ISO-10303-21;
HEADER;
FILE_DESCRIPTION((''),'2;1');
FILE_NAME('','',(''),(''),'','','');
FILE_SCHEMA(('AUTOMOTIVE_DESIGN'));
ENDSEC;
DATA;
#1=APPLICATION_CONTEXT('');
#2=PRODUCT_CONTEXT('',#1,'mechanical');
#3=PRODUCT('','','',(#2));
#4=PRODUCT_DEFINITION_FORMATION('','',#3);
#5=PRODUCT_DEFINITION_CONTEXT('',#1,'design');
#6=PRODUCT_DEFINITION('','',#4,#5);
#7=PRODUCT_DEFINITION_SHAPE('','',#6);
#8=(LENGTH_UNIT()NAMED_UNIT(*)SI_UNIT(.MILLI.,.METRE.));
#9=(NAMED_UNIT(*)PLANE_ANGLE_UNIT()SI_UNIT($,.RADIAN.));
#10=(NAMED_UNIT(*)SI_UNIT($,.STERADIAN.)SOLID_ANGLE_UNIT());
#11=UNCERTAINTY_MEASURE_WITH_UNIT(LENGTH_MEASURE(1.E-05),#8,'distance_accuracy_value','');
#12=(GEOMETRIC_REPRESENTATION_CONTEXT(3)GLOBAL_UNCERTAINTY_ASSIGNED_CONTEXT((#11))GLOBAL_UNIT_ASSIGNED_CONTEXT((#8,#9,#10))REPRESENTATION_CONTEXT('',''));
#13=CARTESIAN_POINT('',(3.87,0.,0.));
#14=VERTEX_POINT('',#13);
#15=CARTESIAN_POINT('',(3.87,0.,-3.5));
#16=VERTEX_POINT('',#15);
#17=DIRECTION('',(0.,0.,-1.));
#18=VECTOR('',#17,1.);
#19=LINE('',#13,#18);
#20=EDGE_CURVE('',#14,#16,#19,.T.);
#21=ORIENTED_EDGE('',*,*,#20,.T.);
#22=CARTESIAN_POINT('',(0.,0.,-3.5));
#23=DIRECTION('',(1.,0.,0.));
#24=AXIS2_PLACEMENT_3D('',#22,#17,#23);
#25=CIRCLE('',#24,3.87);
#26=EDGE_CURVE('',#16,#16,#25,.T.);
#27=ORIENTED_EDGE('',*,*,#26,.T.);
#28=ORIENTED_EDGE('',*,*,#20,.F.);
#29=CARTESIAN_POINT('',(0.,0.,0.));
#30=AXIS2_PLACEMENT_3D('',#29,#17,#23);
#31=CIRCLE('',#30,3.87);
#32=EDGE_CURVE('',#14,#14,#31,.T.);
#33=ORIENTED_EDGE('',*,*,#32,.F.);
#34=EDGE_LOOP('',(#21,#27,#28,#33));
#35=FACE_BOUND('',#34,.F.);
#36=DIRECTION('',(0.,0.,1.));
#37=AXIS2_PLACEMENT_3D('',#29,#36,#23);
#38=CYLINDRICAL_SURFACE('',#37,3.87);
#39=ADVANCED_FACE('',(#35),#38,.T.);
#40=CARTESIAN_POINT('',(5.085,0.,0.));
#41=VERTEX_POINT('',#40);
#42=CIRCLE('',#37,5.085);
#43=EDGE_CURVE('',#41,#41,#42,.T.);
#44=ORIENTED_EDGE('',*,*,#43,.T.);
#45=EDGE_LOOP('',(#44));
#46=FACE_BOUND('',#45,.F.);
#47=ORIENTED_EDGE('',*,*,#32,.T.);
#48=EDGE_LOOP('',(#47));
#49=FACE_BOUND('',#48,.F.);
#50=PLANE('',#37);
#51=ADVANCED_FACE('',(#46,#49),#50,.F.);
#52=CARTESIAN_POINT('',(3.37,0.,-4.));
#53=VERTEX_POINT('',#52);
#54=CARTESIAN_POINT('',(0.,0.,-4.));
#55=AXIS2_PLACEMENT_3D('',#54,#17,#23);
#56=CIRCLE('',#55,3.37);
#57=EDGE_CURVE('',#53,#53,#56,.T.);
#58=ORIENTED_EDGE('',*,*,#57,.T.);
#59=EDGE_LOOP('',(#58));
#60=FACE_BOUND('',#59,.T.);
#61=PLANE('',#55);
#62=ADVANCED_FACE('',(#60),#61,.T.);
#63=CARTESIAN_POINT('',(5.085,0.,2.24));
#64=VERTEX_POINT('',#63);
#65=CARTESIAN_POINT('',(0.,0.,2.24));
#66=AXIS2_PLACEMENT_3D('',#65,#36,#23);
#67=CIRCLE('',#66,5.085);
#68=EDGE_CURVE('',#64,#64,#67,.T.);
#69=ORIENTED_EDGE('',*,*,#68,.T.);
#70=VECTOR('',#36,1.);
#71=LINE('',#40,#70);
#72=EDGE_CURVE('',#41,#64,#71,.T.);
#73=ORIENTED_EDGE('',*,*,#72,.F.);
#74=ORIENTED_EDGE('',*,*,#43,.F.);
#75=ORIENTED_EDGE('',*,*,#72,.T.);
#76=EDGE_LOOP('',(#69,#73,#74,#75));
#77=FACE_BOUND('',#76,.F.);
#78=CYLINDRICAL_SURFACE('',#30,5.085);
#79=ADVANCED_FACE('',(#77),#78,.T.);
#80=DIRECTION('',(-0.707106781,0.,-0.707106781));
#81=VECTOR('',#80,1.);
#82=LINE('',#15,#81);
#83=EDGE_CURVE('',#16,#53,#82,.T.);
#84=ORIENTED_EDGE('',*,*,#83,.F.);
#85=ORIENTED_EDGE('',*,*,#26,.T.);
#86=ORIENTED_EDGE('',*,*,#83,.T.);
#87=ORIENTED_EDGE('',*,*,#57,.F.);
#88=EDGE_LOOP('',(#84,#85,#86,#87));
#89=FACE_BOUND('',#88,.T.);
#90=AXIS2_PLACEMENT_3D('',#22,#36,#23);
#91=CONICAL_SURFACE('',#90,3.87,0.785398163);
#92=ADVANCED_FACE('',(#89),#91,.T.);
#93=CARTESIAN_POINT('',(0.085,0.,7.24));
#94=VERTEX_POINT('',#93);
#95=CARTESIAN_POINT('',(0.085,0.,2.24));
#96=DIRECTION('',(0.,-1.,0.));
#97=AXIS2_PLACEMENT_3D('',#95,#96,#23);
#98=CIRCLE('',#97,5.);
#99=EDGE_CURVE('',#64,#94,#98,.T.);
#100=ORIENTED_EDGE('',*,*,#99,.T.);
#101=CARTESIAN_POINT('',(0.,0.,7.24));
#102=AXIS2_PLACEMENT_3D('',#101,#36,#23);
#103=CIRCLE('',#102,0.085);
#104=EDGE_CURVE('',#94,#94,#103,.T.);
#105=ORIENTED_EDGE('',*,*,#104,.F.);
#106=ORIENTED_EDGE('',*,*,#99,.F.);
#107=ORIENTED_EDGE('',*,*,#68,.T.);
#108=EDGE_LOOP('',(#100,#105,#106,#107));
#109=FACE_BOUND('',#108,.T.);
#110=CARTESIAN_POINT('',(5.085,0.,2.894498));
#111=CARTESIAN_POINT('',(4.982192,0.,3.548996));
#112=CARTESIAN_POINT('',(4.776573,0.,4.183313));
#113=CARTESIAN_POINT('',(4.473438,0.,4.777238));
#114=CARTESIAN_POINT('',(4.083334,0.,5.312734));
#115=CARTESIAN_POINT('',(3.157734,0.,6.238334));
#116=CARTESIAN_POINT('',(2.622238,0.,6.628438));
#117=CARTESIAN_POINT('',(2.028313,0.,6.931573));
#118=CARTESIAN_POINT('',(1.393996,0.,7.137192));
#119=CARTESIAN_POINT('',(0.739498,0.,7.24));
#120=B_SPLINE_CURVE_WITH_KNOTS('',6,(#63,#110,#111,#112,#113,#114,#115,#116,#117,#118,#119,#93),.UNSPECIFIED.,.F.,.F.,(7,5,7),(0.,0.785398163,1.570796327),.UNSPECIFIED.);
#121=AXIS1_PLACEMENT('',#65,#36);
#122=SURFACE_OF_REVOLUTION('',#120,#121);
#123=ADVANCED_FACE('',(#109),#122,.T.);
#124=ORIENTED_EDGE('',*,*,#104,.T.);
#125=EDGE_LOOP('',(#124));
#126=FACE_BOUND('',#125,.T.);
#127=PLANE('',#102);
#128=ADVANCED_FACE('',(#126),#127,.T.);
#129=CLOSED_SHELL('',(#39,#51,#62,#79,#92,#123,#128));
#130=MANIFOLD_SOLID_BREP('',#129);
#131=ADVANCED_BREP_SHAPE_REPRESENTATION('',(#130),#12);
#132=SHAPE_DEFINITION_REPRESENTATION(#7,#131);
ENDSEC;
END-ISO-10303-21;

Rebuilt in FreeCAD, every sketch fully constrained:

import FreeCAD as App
import Part
import Sketcher
from FreeCAD import Vector


def edges_at(feature, points):
    """Names of the edges that pass closest to the given points."""
    edges = feature.Shape.Edges
    near = lambda p: min(range(len(edges)), key=lambda i: edges[i].distToShape(Part.Vertex(*p))[0])
    return sorted({f"Edge{near(p) + 1}" for p in points})

doc = App.newDocument("Part")
body = doc.addObject("PartDesign::Body", "Body")

# Sketch on XY plane
sketch1 = doc.addObject("Sketcher::SketchObject", "Sketch")
body.addObject(sketch1)
sketch1.AttachmentSupport = (doc.XY_Plane, [""])
sketch1.MapMode = "FlatFace"
sketch1.addGeometry(Part.Circle(Vector(0, 0, 0), Vector(0, 0, 1), 5), False)
sketch1.addConstraint([
    Sketcher.Constraint("Coincident", 0, 3, -1, 1),
    Sketcher.Constraint("Diameter", 0, 10.17),
])
pad1 = doc.addObject("PartDesign::Pad", "Pad")
body.addObject(pad1)
pad1.Profile = sketch1
pad1.Length = 7.24
doc.recompute()

fillet = doc.addObject("PartDesign::Fillet", "Fillet")
body.addObject(fillet)
fillet.Base = (pad1, edges_at(pad1, [(-5.085, 0, 7.24)]))
fillet.Radius = 5

# Sketch on XY plane
sketch2 = doc.addObject("Sketcher::SketchObject", "Sketch001")
body.addObject(sketch2)
sketch2.AttachmentSupport = (doc.XY_Plane, [""])
sketch2.MapMode = "FlatFace"
sketch2.addGeometry(Part.Circle(Vector(0, 0, 0), Vector(0, 0, 1), 3.9), False)
sketch2.addConstraint([
    Sketcher.Constraint("Coincident", 0, 3, -1, 1),
    Sketcher.Constraint("Diameter", 0, 7.74),
])
pad2 = doc.addObject("PartDesign::Pad", "Pad001")
body.addObject(pad2)
pad2.Profile = sketch2
pad2.Length = 4
pad2.Reversed = True
doc.recompute()

chamfer = doc.addObject("PartDesign::Chamfer", "Chamfer")
body.addObject(chamfer)
chamfer.Base = (pad2, edges_at(pad2, [(-3.87, 0, -4)]))
chamfer.Size = 0.5

doc.recompute()
